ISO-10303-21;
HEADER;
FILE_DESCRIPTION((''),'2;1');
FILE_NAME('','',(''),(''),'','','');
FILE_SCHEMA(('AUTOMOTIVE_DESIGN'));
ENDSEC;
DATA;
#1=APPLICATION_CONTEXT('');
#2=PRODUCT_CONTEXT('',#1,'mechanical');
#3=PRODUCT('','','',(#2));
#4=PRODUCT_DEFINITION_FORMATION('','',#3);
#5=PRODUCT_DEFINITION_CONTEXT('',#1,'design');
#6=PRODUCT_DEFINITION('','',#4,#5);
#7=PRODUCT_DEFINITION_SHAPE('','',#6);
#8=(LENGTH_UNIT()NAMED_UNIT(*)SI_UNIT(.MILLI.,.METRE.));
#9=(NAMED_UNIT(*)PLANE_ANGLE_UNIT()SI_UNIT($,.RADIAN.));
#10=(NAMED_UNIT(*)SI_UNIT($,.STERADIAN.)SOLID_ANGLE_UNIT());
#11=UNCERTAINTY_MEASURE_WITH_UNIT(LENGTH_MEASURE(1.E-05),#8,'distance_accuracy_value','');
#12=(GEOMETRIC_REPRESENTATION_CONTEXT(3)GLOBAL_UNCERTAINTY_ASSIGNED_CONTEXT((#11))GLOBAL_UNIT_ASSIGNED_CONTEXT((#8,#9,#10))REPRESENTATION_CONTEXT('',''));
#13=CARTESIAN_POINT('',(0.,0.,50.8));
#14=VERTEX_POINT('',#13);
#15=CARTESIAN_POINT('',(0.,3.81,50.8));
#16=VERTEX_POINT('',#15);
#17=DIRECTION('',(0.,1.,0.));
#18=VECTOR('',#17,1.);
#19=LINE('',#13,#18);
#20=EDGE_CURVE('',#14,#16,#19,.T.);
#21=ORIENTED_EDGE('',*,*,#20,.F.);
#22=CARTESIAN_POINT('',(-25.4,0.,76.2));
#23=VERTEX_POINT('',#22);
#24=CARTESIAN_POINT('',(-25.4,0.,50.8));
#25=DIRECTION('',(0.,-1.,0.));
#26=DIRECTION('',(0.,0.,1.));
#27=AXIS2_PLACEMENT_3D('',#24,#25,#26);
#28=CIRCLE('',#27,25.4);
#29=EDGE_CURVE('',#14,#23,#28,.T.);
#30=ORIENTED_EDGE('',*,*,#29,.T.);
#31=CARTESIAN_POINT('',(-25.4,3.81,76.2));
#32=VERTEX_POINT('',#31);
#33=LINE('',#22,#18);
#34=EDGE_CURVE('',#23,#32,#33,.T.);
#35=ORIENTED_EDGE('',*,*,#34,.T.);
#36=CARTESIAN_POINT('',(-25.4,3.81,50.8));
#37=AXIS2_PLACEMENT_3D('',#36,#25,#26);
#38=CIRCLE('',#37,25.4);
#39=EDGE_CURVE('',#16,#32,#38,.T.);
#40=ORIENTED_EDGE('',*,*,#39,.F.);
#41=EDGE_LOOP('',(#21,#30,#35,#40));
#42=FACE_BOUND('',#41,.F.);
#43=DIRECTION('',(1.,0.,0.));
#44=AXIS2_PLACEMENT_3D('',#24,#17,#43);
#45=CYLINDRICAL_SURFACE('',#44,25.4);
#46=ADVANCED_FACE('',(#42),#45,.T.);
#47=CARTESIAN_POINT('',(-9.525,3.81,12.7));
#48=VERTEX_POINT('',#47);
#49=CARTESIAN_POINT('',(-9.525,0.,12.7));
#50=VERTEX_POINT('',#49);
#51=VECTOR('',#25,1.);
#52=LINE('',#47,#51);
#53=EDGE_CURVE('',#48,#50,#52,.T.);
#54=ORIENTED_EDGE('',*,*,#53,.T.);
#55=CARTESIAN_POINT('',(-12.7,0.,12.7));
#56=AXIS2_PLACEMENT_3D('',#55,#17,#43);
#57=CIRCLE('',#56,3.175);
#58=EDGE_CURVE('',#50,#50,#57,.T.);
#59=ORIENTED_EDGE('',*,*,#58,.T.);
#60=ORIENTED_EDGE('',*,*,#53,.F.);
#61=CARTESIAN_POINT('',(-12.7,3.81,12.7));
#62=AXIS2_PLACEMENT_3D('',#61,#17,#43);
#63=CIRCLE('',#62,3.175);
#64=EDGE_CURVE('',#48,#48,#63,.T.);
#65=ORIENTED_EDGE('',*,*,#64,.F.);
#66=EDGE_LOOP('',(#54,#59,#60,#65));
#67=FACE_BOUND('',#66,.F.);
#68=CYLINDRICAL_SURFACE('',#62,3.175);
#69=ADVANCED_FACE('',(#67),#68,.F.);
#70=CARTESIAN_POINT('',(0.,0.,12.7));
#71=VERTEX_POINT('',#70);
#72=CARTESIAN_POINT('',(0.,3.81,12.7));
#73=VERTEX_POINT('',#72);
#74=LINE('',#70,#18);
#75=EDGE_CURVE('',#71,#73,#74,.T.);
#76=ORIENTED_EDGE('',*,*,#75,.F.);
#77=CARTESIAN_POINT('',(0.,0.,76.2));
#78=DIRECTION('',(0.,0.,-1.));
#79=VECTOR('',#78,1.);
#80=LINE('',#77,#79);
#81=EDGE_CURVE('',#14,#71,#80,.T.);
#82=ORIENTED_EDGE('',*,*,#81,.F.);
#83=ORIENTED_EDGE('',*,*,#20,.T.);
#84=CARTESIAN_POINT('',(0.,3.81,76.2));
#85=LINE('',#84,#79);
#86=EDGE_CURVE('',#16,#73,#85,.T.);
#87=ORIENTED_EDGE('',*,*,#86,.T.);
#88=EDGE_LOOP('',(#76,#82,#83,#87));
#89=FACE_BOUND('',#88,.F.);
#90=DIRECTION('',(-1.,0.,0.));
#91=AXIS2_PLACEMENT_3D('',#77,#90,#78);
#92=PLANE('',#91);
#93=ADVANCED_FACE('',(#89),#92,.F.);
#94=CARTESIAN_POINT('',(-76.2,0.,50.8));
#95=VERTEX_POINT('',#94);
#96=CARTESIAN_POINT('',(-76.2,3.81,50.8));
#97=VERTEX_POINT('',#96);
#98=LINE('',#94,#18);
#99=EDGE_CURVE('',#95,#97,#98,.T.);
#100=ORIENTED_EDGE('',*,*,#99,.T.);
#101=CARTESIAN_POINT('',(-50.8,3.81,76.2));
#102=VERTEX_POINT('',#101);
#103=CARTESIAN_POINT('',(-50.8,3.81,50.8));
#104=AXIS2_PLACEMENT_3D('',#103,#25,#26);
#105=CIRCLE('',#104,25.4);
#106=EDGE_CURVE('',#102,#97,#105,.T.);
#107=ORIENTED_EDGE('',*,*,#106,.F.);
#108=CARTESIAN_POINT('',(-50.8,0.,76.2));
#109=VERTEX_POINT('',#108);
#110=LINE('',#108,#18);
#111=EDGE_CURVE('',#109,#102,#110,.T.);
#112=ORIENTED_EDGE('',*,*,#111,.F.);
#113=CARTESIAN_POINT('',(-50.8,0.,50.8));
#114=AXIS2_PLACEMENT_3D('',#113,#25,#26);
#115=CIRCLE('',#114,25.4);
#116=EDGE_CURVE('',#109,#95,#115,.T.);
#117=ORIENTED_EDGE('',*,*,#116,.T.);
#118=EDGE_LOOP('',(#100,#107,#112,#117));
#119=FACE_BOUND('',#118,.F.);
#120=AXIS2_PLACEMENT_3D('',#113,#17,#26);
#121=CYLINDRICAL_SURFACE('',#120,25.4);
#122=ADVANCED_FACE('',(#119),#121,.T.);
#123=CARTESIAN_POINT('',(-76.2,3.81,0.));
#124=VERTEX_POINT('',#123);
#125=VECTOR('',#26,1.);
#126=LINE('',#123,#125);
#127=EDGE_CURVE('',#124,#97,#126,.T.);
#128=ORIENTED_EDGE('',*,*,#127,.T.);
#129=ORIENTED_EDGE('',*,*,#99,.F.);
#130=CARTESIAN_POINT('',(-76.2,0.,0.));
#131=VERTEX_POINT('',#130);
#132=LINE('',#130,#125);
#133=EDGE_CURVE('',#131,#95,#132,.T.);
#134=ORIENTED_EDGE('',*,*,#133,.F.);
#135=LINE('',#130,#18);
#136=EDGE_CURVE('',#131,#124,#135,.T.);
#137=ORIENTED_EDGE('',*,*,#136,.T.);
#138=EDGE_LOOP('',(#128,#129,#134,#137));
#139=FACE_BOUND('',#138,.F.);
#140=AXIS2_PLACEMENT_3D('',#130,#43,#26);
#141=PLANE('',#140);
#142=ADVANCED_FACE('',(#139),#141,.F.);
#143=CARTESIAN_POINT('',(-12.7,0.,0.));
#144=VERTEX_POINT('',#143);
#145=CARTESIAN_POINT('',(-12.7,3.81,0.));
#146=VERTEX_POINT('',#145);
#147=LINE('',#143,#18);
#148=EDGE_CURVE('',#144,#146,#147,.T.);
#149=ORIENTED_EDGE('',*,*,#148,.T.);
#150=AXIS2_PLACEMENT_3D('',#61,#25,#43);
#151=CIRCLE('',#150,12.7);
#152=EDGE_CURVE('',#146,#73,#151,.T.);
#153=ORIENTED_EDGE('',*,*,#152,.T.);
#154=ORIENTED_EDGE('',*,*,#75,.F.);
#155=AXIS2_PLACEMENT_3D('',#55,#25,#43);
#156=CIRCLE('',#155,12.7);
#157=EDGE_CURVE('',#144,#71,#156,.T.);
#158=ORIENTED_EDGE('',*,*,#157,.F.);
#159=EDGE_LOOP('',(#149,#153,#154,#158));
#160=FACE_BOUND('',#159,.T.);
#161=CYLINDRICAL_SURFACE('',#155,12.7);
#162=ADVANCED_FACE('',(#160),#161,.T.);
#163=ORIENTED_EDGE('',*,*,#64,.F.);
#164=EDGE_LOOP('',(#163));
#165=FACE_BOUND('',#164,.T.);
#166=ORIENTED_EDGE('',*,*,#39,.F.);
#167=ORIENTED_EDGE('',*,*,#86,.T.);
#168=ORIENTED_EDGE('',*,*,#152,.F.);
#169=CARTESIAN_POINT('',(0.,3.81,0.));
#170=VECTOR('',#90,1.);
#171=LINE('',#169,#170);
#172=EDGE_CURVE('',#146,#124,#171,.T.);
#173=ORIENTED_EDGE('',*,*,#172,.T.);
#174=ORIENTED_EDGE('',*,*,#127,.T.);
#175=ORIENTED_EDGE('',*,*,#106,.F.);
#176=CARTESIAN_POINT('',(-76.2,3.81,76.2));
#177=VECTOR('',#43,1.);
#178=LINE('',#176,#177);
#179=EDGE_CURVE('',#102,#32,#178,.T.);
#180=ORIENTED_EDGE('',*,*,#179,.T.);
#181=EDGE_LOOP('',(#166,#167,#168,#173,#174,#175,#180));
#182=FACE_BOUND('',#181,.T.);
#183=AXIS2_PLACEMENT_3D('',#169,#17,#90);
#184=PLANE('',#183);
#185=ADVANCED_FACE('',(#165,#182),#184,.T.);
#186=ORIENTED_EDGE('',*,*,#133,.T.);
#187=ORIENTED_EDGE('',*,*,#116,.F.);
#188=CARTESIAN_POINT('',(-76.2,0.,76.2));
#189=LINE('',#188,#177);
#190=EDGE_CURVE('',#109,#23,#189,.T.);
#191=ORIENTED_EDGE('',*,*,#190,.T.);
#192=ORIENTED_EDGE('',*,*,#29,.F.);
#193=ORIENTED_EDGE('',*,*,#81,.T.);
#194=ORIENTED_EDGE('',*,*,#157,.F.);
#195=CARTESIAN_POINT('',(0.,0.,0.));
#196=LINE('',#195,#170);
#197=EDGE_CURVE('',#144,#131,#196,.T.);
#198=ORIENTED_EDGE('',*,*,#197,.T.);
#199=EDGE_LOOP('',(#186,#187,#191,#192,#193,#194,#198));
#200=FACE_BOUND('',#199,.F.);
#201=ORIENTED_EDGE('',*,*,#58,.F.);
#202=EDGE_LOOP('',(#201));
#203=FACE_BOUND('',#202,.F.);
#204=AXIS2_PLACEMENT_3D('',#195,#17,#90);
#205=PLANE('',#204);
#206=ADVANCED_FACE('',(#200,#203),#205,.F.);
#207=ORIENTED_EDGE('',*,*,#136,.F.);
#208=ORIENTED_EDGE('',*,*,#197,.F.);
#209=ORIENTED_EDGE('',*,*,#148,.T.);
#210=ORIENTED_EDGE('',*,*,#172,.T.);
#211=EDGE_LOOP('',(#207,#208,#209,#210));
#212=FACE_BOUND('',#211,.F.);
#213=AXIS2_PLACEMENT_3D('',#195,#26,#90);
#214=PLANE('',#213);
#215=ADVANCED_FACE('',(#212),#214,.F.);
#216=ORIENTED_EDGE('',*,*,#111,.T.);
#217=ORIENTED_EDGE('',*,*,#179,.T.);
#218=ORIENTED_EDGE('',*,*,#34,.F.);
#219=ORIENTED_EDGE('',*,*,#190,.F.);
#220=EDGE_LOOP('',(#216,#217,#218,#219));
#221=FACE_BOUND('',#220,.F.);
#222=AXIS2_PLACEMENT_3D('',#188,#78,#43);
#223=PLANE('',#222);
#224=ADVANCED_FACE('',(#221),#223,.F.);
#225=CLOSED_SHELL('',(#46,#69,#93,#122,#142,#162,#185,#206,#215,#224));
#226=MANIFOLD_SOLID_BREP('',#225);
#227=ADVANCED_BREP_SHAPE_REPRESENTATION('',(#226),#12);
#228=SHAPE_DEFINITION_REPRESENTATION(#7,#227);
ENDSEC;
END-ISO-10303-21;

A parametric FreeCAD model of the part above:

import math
import FreeCAD as App
import Part
import Sketcher

V = App.Vector
Q = App.Units.Quantity


def edges_at(feature, points):
    """Names of the edges that pass closest to the given points."""
    edges = feature.Shape.Edges
    near = lambda p: min(range(len(edges)), key=lambda i: edges[i].distToShape(Part.Vertex(*p))[0])
    return sorted({f"Edge{near(p) + 1}" for p in points})


def add_polygon(sketch, points):
    """Adds a closed chain of lines whose ends are joined by coincident constraints."""
    first, n = sketch.GeometryCount, len(points)
    for a, b in zip(points, points[1:] + points[:1]):
        sketch.addGeometry(Part.LineSegment(App.Vector(*a, 0), App.Vector(*b, 0)), False)
    for i in range(n):
        sketch.addConstraint(Sketcher.Constraint("Coincident", first + i, 2, first + (i + 1) % n, 1))

doc = App.newDocument("Part")
params = doc.addObject("Spreadsheet::Sheet", "Params")
for row, (alias, value) in enumerate([
    ("sketch1_width", "3 in"),
    ("pad1_length", "0.15 in"),
    ("sketch2_diameter", "0.25 in"),
    ("pocket1_length", "0.15 in"),
    ("sketch3_radius", "0.5 in"),
    ("pocket2_length", "0.15 in"),
    ("fillet_radius", "1 in"),
], start=1):
    params.set(f"A{row}", alias)
    params.set(f"B{row}", "=" + value)
    params.setAlias(f"B{row}", alias)

body = doc.addObject("PartDesign::Body", "Body")

# Sketch on XZ plane
sketch1 = doc.addObject("Sketcher::SketchObject", "Sketch")
body.addObject(sketch1)
sketch1.AttachmentSupport = (doc.XZ_Plane, [""])
sketch1.MapMode = "FlatFace"
add_polygon(sketch1, [(0, 76), (0, 0), (-76, 0), (-76, 76)])  # lines 0-3
sketch1.addConstraint(Sketcher.Constraint("Vertical", 0))
sketch1.addConstraint(Sketcher.Constraint("Horizontal", 1))
sketch1.addConstraint(Sketcher.Constraint("Vertical", 2))
sketch1.addConstraint(Sketcher.Constraint("Horizontal", 3))
sketch1.addConstraint(Sketcher.Constraint("Coincident", 0, 2, -1, 1))
sketch1.addConstraint(Sketcher.Constraint("Equal", 3, 0))
sketch1.addConstraint(Sketcher.Constraint("DistanceX", 1, 2, 1, 1, Q("3 in")))
sketch1.setExpression("Constraints[10]", "Params.sketch1_width")
pad1 = doc.addObject("PartDesign::Pad", "Pad")
body.addObject(pad1)
pad1.Profile = sketch1
pad1.setExpression("Length", "Params.pad1_length")
pad1.Reversed = True

# Sketch on XZ plane
sketch2 = doc.addObject("Sketcher::SketchObject", "Sketch001")
body.addObject(sketch2)
sketch2.AttachmentSupport = (doc.XZ_Plane, [""])
sketch2.MapMode = "FlatFace"
sketch2.AttachmentOffset = App.Placement(V(0, 0, -0.15 * 25.4), App.Rotation())
sketch2.addGeometry(Part.Circle(V(-12.7, 12.7, 0), V(0, 0, 1), 3.2), False)
sketch2.addConstraint(Sketcher.Constraint("Diameter", 0, Q("0.25 in")))
sketch2.addConstraint(Sketcher.Constraint("DistanceX", 0, 3, -1, 1, Q("0.5 in")))
sketch2.addConstraint(Sketcher.Constraint("DistanceY", -1, 1, 0, 3, Q("0.5 in")))
sketch2.setExpression("Constraints[0]", "Params.sketch2_diameter")
pocket1 = doc.addObject("PartDesign::Pocket", "Pocket")
body.addObject(pocket1)
pocket1.Profile = sketch2
pocket1.setExpression("Length", "Params.pocket1_length")
pocket1.Reversed = True

# Sketch on XZ plane
sketch3 = doc.addObject("Sketcher::SketchObject", "Sketch002")
body.addObject(sketch3)
sketch3.AttachmentSupport = (doc.XZ_Plane, [""])
sketch3.MapMode = "FlatFace"
sketch3.addGeometry(Part.LineSegment(V(0, 0, 0), V(0, 13, 0)), False)
sketch3.addGeometry(Part.ArcOfCircle(Part.Circle(V(-13, 13, 0), V(0, 0, 1), 13), math.radians(-90), math.radians(0)), False)
sketch3.addGeometry(Part.LineSegment(V(-13, 0, 0), V(0, 0, 0)), False)
sketch3.addConstraint(Sketcher.Constraint("Tangent", 0, 2, 1, 2))
sketch3.addConstraint(Sketcher.Constraint("Tangent", 1, 1, 2, 1))
sketch3.addConstraint(Sketcher.Constraint("Coincident", 2, 2, 0, 1))
sketch3.addConstraint(Sketcher.Constraint("Vertical", 0))
sketch3.addConstraint(Sketcher.Constraint("Horizontal", 2))
sketch3.addConstraint(Sketcher.Constraint("Coincident", 2, 2, -1, 1))
sketch3.addConstraint(Sketcher.Constraint("Radius", 1, Q("0.5 in")))
sketch3.setExpression("Constraints[6]", "Params.sketch3_radius")
pocket2 = doc.addObject("PartDesign::Pocket", "Pocket001")
body.addObject(pocket2)
pocket2.Profile = sketch3
pocket2.setExpression("Length", "Params.pocket2_length")
doc.recompute()

fillet = doc.addObject("PartDesign::Fillet", "Fillet")
body.addObject(fillet)
fillet.Base = (pocket2, edges_at(pocket2, [(-76.2, 1.905, 76.2), (0, 1.905, 76.2)]))
fillet.setExpression("Radius", "Params.fillet_radius")

doc.recompute()
